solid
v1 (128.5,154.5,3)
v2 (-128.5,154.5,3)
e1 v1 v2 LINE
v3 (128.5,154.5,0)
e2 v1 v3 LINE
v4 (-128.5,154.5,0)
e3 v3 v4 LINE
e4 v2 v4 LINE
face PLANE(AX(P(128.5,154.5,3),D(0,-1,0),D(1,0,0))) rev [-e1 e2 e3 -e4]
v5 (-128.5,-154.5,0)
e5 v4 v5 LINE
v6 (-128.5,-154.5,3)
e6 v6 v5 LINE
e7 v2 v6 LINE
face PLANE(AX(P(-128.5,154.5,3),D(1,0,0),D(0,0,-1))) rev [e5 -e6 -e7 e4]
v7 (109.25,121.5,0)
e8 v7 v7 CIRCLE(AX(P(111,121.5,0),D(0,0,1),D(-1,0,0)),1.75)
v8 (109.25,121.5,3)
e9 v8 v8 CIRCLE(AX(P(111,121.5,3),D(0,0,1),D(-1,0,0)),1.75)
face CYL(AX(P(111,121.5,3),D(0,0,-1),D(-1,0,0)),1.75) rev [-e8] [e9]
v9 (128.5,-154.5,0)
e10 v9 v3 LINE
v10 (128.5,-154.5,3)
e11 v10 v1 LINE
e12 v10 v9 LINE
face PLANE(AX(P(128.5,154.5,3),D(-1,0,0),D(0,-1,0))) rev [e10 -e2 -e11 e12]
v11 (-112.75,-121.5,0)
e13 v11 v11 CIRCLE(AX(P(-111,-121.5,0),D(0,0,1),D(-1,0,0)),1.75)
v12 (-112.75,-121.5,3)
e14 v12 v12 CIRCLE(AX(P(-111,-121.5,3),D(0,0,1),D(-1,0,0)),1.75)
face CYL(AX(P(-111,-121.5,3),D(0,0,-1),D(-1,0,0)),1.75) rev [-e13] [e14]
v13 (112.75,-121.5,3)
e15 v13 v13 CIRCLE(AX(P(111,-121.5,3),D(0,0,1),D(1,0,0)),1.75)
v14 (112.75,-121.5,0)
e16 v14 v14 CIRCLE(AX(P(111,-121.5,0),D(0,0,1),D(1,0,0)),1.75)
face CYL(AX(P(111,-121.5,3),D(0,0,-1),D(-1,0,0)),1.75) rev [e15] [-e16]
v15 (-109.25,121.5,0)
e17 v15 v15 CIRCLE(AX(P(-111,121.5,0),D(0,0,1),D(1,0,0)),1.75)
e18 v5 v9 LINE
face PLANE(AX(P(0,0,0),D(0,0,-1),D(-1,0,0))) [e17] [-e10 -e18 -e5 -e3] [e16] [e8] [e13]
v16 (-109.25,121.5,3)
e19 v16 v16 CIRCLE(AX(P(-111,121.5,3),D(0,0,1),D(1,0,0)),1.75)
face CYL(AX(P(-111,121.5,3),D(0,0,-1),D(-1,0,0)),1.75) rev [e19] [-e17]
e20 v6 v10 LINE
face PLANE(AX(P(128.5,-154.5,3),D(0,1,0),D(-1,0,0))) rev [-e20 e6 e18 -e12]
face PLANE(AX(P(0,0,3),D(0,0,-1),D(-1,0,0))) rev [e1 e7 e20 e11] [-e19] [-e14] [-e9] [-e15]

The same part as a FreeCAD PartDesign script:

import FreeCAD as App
import Part
import Sketcher

V = App.Vector

doc = App.newDocument("Part")
body = doc.addObject("PartDesign::Body", "Body")

# Sketch on XY plane
sketch1 = body.newObject("Sketcher::SketchObject", "Sketch")
sketch1.AttachmentSupport = (doc.getObject("XY_Plane"), [""])
sketch1.MapMode = "FlatFace"
sketch1.addGeometry(Part.LineSegment(V(-128.5, 154.5, 0), V(-128.5, -154.5, 0)), False)
sketch1.addGeometry(Part.LineSegment(V(-128.5, -154.5, 0), V(128.5, -154.5, 0)), False)
sketch1.addGeometry(Part.LineSegment(V(128.5, -154.5, 0), V(128.5, 154.5, 0)), False)
sketch1.addGeometry(Part.LineSegment(V(128.5, 154.5, 0), V(-128.5, 154.5, 0)), False)
sketch1.addGeometry(Part.Circle(V(-111, -121.5, 0), V(0, 0, 1), 1.8), False)
sketch1.addGeometry(Part.Circle(V(111, -121.5, 0), V(0, 0, 1), 1.8), False)
sketch1.addGeometry(Part.Circle(V(-111, 121.5, 0), V(0, 0, 1), 1.8), False)
sketch1.addGeometry(Part.Circle(V(111, 121.5, 0), V(0, 0, 1), 1.8), False)
sketch1.addConstraint(Sketcher.Constraint("Coincident", 0, 2, 1, 1))
sketch1.addConstraint(Sketcher.Constraint("Coincident", 1, 2, 2, 1))
sketch1.addConstraint(Sketcher.Constraint("Coincident", 2, 2, 3, 1))
sketch1.addConstraint(Sketcher.Constraint("Coincident", 3, 2, 0, 1))
sketch1.addConstraint(Sketcher.Constraint("Vertical", 0))
sketch1.addConstraint(Sketcher.Constraint("Horizontal", 1))
sketch1.addConstraint(Sketcher.Constraint("Vertical", 2))
sketch1.addConstraint(Sketcher.Constraint("Horizontal", 3))
sketch1.addConstraint(Sketcher.Constraint("Equal", 4, 5))
sketch1.addConstraint(Sketcher.Constraint("Equal", 5, 6))
sketch1.addConstraint(Sketcher.Constraint("Equal", 6, 7))
sketch1.addConstraint(Sketcher.Constraint("Symmetric", 5, 3, 6, 3, -1, 1))
sketch1.addConstraint(Sketcher.Constraint("Symmetric", 4, 3, 7, 3, -1, 1))
sketch1.addConstraint(Sketcher.Constraint("Symmetric", 0, 2, 2, 2, -1, 1))
sketch1.addConstraint(Sketcher.Constraint("Symmetric", 4, 3, 5, 3, -2))
sketch1.addConstraint(Sketcher.Constraint("Diameter", 4, 3.5))
sketch1.addConstraint(Sketcher.Constraint("DistanceX", 1, 1, 1, 2, 257.0))
sketch1.addConstraint(Sketcher.Constraint("DistanceY", 0, 2, 0, 1, 309.0))
sketch1.addConstraint(Sketcher.Constraint("DistanceX", 4, 3, -1, 1, 111.0))
sketch1.addConstraint(Sketcher.Constraint("DistanceY", 4, 3, 6, 3, 243.0))
pad1 = body.newObject("PartDesign::Pad", "Pad")
pad1.Profile = sketch1
pad1.Length = 3

doc.recompute()
